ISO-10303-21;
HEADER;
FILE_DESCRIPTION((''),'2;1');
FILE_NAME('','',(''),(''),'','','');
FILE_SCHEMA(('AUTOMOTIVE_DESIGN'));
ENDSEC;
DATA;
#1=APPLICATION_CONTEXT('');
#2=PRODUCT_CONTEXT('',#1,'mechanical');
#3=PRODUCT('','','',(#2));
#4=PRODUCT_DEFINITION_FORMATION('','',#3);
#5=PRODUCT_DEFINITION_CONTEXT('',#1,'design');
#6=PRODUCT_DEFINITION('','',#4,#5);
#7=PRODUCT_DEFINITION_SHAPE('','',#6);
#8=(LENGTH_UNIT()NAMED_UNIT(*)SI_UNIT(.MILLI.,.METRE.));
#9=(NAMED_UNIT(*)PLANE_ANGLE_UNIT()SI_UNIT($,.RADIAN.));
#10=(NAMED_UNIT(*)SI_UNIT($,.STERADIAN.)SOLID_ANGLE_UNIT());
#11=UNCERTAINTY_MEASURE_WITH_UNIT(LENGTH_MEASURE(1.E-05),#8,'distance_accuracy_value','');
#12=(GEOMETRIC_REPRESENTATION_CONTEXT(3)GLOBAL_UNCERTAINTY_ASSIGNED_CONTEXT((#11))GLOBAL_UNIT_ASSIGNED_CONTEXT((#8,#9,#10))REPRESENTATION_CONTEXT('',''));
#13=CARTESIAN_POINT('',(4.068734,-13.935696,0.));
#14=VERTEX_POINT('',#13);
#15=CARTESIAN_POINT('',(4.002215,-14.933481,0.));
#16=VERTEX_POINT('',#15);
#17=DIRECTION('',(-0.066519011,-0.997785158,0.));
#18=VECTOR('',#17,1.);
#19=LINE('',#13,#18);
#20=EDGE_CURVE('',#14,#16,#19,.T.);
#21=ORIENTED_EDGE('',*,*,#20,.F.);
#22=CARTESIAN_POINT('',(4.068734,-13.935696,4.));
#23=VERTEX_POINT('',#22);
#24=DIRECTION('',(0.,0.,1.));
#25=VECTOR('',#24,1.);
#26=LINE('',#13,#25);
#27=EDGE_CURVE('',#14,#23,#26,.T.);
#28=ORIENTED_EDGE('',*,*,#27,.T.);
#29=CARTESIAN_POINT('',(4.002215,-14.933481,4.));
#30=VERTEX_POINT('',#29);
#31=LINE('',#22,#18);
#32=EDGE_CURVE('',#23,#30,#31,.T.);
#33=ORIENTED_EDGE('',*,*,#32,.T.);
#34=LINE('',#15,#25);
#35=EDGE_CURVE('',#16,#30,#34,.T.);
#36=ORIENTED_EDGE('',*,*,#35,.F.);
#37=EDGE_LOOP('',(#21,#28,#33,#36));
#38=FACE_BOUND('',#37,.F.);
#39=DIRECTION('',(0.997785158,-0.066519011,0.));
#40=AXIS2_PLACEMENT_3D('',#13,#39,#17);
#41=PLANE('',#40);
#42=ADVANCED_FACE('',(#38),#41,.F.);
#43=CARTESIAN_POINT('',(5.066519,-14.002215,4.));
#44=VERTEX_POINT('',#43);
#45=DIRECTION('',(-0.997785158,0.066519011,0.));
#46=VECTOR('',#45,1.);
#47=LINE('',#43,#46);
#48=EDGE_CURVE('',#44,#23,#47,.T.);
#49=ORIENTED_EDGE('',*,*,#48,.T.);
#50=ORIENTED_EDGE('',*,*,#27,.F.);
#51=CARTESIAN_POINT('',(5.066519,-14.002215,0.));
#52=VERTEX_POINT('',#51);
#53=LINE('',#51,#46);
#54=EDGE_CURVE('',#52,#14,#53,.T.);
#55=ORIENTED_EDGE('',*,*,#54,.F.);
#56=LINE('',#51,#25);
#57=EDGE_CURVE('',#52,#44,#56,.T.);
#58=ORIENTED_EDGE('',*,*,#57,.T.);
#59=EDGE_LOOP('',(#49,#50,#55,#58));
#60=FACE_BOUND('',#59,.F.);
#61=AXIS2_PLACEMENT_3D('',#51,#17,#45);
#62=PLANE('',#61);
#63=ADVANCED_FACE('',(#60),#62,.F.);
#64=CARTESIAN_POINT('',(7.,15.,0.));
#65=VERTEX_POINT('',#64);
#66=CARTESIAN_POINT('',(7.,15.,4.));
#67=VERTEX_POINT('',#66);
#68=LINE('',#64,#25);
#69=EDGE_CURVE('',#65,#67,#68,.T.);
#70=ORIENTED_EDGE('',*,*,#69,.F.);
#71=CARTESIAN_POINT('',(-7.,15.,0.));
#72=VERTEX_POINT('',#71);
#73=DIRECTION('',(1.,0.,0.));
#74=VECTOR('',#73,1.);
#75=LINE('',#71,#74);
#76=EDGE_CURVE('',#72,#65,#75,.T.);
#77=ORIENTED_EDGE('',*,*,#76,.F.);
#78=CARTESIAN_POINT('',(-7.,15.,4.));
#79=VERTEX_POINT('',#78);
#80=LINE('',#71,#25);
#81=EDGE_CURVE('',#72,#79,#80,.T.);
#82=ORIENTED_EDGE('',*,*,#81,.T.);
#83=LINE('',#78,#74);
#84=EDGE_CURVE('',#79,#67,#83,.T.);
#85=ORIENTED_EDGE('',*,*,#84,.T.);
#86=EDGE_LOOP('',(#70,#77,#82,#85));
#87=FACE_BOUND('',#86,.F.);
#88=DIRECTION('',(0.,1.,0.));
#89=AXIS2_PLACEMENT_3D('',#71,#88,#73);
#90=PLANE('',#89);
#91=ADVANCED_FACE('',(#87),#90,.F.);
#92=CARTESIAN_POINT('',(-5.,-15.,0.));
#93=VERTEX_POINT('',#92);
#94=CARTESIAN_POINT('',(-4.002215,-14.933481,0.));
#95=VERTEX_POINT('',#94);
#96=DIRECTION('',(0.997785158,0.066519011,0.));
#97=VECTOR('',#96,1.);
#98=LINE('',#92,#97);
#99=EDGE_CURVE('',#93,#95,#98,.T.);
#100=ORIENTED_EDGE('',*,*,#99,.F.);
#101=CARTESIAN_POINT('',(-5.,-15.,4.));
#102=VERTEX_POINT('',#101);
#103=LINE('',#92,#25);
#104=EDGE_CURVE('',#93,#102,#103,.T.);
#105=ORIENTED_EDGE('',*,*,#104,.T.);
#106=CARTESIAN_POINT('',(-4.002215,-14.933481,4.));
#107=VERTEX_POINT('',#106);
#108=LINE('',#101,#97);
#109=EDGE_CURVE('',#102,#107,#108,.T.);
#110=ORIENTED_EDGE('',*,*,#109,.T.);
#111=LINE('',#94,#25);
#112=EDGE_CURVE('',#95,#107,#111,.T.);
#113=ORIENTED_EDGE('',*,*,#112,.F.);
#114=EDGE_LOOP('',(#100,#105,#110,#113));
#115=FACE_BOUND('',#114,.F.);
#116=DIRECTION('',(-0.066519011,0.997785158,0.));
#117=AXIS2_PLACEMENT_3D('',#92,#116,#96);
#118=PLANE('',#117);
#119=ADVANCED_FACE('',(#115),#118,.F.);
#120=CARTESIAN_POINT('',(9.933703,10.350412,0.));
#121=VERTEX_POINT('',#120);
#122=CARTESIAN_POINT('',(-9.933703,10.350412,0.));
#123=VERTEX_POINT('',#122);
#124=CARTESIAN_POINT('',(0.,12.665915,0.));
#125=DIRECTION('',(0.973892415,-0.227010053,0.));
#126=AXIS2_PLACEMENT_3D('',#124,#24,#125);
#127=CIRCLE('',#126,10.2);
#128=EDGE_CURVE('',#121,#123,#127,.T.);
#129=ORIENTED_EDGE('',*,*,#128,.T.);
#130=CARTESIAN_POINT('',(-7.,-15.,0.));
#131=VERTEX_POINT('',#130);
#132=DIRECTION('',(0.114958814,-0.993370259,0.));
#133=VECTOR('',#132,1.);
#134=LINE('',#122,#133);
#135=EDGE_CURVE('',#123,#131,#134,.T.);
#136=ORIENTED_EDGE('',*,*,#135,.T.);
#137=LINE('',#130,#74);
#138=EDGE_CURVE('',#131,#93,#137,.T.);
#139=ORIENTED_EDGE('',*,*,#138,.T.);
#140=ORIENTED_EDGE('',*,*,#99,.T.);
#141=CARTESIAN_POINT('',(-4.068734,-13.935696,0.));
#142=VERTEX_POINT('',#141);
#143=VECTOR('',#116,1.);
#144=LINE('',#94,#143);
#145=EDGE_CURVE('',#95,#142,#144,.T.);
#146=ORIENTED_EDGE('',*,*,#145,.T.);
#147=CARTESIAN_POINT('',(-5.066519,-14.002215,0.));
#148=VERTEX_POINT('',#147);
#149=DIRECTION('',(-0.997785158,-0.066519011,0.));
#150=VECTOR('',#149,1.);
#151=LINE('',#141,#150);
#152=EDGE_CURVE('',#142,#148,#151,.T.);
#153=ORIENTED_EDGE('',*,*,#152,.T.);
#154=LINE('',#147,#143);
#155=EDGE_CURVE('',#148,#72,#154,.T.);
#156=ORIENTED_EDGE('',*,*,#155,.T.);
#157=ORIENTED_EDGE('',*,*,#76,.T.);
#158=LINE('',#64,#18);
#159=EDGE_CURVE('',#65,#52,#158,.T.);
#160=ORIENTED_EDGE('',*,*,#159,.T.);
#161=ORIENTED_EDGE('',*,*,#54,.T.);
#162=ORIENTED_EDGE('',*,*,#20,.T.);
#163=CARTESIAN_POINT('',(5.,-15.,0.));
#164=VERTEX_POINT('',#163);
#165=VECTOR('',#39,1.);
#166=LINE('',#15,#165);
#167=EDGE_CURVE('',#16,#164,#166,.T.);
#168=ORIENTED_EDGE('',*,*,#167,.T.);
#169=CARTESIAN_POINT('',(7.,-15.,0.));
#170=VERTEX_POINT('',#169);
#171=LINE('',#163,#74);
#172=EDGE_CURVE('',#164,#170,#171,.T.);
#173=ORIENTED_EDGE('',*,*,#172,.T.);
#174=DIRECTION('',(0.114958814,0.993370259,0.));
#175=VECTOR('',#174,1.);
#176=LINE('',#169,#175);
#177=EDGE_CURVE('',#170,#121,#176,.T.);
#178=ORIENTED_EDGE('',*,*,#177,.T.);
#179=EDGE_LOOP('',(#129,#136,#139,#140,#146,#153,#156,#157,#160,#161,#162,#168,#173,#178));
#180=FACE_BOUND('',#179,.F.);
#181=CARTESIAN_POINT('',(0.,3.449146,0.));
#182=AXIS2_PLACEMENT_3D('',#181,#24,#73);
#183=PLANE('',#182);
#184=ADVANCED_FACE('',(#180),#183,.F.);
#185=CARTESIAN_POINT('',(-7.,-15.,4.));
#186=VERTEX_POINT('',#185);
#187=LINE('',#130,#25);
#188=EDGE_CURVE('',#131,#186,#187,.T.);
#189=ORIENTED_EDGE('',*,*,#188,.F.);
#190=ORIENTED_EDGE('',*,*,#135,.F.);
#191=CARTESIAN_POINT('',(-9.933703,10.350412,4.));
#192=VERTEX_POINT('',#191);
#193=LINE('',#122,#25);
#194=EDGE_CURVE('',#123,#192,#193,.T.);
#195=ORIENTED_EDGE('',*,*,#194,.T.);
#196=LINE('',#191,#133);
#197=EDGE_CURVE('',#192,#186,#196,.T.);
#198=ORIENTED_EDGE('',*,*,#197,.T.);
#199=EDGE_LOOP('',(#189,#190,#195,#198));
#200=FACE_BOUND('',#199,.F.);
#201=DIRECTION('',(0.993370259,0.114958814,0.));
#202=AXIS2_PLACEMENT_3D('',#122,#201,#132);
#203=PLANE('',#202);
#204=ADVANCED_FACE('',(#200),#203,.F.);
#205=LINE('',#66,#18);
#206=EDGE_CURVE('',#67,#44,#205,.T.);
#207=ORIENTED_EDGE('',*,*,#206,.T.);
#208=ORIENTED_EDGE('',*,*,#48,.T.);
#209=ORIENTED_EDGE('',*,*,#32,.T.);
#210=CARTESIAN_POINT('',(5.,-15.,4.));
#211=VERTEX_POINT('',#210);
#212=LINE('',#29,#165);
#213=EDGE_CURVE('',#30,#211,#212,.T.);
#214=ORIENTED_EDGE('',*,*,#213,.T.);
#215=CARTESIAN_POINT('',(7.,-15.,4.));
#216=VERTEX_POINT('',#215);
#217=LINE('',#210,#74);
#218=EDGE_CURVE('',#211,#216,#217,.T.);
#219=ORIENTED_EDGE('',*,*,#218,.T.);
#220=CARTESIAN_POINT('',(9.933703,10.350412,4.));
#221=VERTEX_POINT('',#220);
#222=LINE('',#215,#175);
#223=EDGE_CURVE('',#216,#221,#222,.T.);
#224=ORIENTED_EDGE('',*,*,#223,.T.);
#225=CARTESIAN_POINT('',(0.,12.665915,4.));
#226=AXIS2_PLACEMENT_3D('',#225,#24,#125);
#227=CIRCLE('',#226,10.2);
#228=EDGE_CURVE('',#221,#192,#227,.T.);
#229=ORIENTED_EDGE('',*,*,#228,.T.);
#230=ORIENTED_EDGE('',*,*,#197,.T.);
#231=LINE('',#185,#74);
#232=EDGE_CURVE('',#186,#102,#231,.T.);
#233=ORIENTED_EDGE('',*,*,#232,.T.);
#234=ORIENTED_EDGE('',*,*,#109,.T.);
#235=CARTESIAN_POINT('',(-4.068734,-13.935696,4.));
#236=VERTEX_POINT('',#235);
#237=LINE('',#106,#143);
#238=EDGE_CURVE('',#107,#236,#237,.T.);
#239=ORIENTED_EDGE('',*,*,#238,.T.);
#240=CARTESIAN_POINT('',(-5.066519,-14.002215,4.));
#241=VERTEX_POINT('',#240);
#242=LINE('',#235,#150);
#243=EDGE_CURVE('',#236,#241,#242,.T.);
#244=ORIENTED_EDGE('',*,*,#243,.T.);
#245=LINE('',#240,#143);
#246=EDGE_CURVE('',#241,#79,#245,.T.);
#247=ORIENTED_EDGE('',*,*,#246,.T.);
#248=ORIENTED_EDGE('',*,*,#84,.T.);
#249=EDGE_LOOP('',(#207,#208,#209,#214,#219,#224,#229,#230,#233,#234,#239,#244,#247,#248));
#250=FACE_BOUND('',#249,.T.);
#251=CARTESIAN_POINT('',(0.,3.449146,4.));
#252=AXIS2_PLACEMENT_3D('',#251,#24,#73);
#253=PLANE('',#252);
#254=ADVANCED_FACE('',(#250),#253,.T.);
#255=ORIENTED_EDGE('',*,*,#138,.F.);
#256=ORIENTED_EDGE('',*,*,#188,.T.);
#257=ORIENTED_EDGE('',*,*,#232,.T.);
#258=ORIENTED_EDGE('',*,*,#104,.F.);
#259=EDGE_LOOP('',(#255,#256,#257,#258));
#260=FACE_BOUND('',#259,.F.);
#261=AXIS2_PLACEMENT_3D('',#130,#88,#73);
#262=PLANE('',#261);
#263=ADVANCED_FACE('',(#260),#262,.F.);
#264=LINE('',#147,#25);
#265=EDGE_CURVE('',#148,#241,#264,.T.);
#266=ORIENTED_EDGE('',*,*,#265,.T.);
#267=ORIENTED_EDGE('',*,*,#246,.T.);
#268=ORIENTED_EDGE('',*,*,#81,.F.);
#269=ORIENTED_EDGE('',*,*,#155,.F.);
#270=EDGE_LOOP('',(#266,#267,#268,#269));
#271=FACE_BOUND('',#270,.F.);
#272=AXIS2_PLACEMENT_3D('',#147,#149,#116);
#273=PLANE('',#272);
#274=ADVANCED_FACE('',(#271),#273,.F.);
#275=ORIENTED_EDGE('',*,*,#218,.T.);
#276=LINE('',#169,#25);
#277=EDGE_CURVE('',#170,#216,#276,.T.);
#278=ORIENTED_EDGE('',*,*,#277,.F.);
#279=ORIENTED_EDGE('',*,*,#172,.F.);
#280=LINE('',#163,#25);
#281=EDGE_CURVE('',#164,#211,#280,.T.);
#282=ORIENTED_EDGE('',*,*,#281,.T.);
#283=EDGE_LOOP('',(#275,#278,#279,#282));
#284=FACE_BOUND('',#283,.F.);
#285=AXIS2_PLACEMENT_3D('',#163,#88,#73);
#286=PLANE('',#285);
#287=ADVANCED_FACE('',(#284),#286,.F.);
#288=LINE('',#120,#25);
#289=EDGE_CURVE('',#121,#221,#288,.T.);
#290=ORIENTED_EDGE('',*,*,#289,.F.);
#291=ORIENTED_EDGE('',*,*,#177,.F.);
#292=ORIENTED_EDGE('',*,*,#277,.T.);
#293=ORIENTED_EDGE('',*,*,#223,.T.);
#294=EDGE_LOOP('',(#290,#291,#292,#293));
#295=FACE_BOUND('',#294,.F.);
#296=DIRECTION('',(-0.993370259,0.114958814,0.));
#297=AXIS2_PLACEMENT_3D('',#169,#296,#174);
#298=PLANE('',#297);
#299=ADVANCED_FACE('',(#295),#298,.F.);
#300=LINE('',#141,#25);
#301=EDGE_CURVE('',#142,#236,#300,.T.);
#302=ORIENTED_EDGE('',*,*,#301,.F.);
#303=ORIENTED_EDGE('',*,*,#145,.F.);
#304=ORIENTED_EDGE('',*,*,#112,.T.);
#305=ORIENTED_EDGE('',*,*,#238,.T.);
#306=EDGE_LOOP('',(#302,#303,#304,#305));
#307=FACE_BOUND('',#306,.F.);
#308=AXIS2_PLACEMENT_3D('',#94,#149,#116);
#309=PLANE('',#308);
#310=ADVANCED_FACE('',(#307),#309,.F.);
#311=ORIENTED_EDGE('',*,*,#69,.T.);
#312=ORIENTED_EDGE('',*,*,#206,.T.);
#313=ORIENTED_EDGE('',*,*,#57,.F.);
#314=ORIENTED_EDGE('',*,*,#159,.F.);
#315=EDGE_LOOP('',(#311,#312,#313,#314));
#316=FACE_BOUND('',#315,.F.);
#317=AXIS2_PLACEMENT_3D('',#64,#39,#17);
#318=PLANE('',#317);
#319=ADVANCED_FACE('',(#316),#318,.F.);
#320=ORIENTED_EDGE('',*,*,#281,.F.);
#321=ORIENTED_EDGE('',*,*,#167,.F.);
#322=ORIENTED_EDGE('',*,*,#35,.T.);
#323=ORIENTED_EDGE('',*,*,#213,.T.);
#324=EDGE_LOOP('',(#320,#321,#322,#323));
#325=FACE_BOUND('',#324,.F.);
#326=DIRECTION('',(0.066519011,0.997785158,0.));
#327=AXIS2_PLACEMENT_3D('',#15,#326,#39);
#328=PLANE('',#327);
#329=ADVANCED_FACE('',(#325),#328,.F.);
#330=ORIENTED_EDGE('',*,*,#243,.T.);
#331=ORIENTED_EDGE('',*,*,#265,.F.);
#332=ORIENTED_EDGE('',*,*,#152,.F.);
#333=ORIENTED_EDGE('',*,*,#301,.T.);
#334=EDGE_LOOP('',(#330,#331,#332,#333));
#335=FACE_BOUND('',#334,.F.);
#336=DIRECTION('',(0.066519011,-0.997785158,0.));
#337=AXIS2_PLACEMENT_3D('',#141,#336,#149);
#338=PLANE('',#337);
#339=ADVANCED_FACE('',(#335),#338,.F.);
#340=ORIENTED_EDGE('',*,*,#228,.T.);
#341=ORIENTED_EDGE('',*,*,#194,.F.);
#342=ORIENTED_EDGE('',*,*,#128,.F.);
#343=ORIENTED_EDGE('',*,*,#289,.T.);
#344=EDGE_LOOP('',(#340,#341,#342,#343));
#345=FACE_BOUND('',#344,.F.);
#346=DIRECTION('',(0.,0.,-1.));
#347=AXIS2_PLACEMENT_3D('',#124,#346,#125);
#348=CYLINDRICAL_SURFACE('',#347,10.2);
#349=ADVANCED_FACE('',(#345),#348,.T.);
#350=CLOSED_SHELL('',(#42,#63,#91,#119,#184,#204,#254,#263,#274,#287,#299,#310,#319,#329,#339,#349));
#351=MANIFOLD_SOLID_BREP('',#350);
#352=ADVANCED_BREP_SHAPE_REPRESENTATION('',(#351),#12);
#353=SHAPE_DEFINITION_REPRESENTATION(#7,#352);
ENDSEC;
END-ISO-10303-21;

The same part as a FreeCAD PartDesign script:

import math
import FreeCAD as App
import Part
import Sketcher
Q = App.Units.Quantity

doc = App.newDocument("Part")
params = doc.addObject("Spreadsheet::Sheet", "Params")
for row, (alias, value) in enumerate([
    ("sketch1_radius", "10.2 mm"),
    ("sketch1_width", "14 mm"),
    ("sketch1_width2", "2 mm"),
    ("sketch1_length", "1 mm"),
    ("pad1_length", "4 mm"),
], start=1):
    params.set(f"A{row}", alias)
    params.set(f"B{row}", "=" + value)
    params.setAlias(f"B{row}", alias)

body = doc.addObject("PartDesign::Body", "Body")

# Sketch on XY plane
sketch1 = body.newObject("Sketcher::SketchObject", "Sketch")
sketch1.AttachmentSupport = (doc.getObject("XY_Plane"), [""])
sketch1.MapMode = "FlatFace"
sketch1.addGeometry(Part.LineSegment(App.Vector(-5.1, -14, 0), App.Vector(-7, 15, 0)), False)
sketch1.addGeometry(Part.LineSegment(App.Vector(-7, 15, 0), App.Vector(7, 15, 0)), False)
sketch1.addGeometry(Part.LineSegment(App.Vector(7, 15, 0), App.Vector(5.1, -14, 0)), False)
sketch1.addGeometry(Part.LineSegment(App.Vector(5.1, -14, 0), App.Vector(4.1, -13.9, 0)), False)
sketch1.addGeometry(Part.LineSegment(App.Vector(4.1, -13.9, 0), App.Vector(4, -14.9, 0)), False)
sketch1.addGeometry(Part.LineSegment(App.Vector(4, -14.9, 0), App.Vector(5, -15, 0)), False)
sketch1.addGeometry(Part.LineSegment(App.Vector(5, -15, 0), App.Vector(7, -15, 0)), False)
sketch1.addGeometry(Part.LineSegment(App.Vector(7, -15, 0), App.Vector(9.9, 10.4, 0)), False)
sketch1.addGeometry(Part.ArcOfCircle(Part.Circle(App.Vector(0, 12.7, 0), App.Vector(0, 0, 1), 10.2), math.radians(-13), math.radians(193)), False)
sketch1.addGeometry(Part.LineSegment(App.Vector(-9.9, 10.4, 0), App.Vector(-7, -15, 0)), False)
sketch1.addGeometry(Part.LineSegment(App.Vector(-7, -15, 0), App.Vector(-5, -15, 0)), False)
sketch1.addGeometry(Part.LineSegment(App.Vector(-5, -15, 0), App.Vector(-4, -14.9, 0)), False)
sketch1.addGeometry(Part.LineSegment(App.Vector(-4, -14.9, 0), App.Vector(-4.1, -13.9, 0)), False)
sketch1.addGeometry(Part.LineSegment(App.Vector(-4.1, -13.9, 0), App.Vector(-5.1, -14, 0)), False)
sketch1.addConstraint(Sketcher.Constraint("Coincident", 0, 2, 1, 1))
sketch1.addConstraint(Sketcher.Constraint("Coincident", 1, 2, 2, 1))
sketch1.addConstraint(Sketcher.Constraint("Coincident", 2, 2, 3, 1))
sketch1.addConstraint(Sketcher.Constraint("Coincident", 3, 2, 4, 1))
sketch1.addConstraint(Sketcher.Constraint("Coincident", 4, 2, 5, 1))
sketch1.addConstraint(Sketcher.Constraint("Coincident", 5, 2, 6, 1))
sketch1.addConstraint(Sketcher.Constraint("Coincident", 6, 2, 7, 1))
sketch1.addConstraint(Sketcher.Constraint("Coincident", 7, 2, 8, 1))
sketch1.addConstraint(Sketcher.Constraint("Coincident", 8, 2, 9, 1))
sketch1.addConstraint(Sketcher.Constraint("Coincident", 9, 2, 10, 1))
sketch1.addConstraint(Sketcher.Constraint("Coincident", 10, 2, 11, 1))
sketch1.addConstraint(Sketcher.Constraint("Coincident", 11, 2, 12, 1))
sketch1.addConstraint(Sketcher.Constraint("Coincident", 12, 2, 13, 1))
sketch1.addConstraint(Sketcher.Constraint("Coincident", 13, 2, 0, 1))
sketch1.addConstraint(Sketcher.Constraint("Horizontal", 1))
sketch1.addConstraint(Sketcher.Constraint("Horizontal", 6))
sketch1.addConstraint(Sketcher.Constraint("Horizontal", 10))
sketch1.addConstraint(Sketcher.Constraint("Symmetric", 0, 2, 6, 2, -1, 1))
sketch1.addConstraint(Sketcher.Constraint("Symmetric", 1, 2, 9, 2, -1, 1))
sketch1.addConstraint(Sketcher.Constraint("Symmetric", 7, 2, 8, 2, -2))
sketch1.addConstraint(Sketcher.Constraint("Symmetric", 4, 2, 11, 2, -2))
sketch1.addConstraint(Sketcher.Constraint("Symmetric", 3, 2, 12, 2, -2))
sketch1.addConstraint(Sketcher.Constraint("Symmetric", 2, 2, 13, 2, -2))
sketch1.addConstraint(Sketcher.Constraint("Perpendicular", 2, 3))
sketch1.addConstraint(Sketcher.Constraint("Perpendicular", 3, 4))
sketch1.addConstraint(Sketcher.Constraint("Perpendicular", 4, 5))
sketch1.addConstraint(Sketcher.Constraint("Perpendicular", 0, 11))
sketch1.addConstraint(Sketcher.Constraint("Perpendicular", 11, 12))
sketch1.addConstraint(Sketcher.Constraint("Equal", 3, 4))
sketch1.addConstraint(Sketcher.Constraint("Equal", 4, 5))
sketch1.addConstraint(Sketcher.Constraint("Radius", 8, Q("10.2 mm")))
sketch1.addConstraint(Sketcher.Constraint("DistanceX", 1, 1, 1, 2, Q("14 mm")))
sketch1.addConstraint(Sketcher.Constraint("DistanceX", 6, 1, 6, 2, Q("2 mm")))
sketch1.addConstraint(Sketcher.Constraint("Distance", 3, Q("1 mm")))
sketch1.addConstraint(Sketcher.Constraint("DistanceY", -1, 1, 0, 2, Q("15 mm")))
sketch1.addConstraint(Sketcher.Constraint("Distance", 7, Q("25.5196 mm")))
sketch1.addConstraint(Sketcher.Constraint("DistanceY", -1, 1, 8, 2, Q("10.350412 mm")))
sketch1.setExpression("Constraints[30]", "Params.sketch1_radius")
sketch1.setExpression("Constraints[31]", "Params.sketch1_width")
sketch1.setExpression("Constraints[32]", "Params.sketch1_width2")
sketch1.setExpression("Constraints[33]", "Params.sketch1_length")
pad1 = body.newObject("PartDesign::Pad", "Pad")
pad1.Profile = sketch1
pad1.setExpression("Length", "Params.pad1_length")

doc.recompute()
